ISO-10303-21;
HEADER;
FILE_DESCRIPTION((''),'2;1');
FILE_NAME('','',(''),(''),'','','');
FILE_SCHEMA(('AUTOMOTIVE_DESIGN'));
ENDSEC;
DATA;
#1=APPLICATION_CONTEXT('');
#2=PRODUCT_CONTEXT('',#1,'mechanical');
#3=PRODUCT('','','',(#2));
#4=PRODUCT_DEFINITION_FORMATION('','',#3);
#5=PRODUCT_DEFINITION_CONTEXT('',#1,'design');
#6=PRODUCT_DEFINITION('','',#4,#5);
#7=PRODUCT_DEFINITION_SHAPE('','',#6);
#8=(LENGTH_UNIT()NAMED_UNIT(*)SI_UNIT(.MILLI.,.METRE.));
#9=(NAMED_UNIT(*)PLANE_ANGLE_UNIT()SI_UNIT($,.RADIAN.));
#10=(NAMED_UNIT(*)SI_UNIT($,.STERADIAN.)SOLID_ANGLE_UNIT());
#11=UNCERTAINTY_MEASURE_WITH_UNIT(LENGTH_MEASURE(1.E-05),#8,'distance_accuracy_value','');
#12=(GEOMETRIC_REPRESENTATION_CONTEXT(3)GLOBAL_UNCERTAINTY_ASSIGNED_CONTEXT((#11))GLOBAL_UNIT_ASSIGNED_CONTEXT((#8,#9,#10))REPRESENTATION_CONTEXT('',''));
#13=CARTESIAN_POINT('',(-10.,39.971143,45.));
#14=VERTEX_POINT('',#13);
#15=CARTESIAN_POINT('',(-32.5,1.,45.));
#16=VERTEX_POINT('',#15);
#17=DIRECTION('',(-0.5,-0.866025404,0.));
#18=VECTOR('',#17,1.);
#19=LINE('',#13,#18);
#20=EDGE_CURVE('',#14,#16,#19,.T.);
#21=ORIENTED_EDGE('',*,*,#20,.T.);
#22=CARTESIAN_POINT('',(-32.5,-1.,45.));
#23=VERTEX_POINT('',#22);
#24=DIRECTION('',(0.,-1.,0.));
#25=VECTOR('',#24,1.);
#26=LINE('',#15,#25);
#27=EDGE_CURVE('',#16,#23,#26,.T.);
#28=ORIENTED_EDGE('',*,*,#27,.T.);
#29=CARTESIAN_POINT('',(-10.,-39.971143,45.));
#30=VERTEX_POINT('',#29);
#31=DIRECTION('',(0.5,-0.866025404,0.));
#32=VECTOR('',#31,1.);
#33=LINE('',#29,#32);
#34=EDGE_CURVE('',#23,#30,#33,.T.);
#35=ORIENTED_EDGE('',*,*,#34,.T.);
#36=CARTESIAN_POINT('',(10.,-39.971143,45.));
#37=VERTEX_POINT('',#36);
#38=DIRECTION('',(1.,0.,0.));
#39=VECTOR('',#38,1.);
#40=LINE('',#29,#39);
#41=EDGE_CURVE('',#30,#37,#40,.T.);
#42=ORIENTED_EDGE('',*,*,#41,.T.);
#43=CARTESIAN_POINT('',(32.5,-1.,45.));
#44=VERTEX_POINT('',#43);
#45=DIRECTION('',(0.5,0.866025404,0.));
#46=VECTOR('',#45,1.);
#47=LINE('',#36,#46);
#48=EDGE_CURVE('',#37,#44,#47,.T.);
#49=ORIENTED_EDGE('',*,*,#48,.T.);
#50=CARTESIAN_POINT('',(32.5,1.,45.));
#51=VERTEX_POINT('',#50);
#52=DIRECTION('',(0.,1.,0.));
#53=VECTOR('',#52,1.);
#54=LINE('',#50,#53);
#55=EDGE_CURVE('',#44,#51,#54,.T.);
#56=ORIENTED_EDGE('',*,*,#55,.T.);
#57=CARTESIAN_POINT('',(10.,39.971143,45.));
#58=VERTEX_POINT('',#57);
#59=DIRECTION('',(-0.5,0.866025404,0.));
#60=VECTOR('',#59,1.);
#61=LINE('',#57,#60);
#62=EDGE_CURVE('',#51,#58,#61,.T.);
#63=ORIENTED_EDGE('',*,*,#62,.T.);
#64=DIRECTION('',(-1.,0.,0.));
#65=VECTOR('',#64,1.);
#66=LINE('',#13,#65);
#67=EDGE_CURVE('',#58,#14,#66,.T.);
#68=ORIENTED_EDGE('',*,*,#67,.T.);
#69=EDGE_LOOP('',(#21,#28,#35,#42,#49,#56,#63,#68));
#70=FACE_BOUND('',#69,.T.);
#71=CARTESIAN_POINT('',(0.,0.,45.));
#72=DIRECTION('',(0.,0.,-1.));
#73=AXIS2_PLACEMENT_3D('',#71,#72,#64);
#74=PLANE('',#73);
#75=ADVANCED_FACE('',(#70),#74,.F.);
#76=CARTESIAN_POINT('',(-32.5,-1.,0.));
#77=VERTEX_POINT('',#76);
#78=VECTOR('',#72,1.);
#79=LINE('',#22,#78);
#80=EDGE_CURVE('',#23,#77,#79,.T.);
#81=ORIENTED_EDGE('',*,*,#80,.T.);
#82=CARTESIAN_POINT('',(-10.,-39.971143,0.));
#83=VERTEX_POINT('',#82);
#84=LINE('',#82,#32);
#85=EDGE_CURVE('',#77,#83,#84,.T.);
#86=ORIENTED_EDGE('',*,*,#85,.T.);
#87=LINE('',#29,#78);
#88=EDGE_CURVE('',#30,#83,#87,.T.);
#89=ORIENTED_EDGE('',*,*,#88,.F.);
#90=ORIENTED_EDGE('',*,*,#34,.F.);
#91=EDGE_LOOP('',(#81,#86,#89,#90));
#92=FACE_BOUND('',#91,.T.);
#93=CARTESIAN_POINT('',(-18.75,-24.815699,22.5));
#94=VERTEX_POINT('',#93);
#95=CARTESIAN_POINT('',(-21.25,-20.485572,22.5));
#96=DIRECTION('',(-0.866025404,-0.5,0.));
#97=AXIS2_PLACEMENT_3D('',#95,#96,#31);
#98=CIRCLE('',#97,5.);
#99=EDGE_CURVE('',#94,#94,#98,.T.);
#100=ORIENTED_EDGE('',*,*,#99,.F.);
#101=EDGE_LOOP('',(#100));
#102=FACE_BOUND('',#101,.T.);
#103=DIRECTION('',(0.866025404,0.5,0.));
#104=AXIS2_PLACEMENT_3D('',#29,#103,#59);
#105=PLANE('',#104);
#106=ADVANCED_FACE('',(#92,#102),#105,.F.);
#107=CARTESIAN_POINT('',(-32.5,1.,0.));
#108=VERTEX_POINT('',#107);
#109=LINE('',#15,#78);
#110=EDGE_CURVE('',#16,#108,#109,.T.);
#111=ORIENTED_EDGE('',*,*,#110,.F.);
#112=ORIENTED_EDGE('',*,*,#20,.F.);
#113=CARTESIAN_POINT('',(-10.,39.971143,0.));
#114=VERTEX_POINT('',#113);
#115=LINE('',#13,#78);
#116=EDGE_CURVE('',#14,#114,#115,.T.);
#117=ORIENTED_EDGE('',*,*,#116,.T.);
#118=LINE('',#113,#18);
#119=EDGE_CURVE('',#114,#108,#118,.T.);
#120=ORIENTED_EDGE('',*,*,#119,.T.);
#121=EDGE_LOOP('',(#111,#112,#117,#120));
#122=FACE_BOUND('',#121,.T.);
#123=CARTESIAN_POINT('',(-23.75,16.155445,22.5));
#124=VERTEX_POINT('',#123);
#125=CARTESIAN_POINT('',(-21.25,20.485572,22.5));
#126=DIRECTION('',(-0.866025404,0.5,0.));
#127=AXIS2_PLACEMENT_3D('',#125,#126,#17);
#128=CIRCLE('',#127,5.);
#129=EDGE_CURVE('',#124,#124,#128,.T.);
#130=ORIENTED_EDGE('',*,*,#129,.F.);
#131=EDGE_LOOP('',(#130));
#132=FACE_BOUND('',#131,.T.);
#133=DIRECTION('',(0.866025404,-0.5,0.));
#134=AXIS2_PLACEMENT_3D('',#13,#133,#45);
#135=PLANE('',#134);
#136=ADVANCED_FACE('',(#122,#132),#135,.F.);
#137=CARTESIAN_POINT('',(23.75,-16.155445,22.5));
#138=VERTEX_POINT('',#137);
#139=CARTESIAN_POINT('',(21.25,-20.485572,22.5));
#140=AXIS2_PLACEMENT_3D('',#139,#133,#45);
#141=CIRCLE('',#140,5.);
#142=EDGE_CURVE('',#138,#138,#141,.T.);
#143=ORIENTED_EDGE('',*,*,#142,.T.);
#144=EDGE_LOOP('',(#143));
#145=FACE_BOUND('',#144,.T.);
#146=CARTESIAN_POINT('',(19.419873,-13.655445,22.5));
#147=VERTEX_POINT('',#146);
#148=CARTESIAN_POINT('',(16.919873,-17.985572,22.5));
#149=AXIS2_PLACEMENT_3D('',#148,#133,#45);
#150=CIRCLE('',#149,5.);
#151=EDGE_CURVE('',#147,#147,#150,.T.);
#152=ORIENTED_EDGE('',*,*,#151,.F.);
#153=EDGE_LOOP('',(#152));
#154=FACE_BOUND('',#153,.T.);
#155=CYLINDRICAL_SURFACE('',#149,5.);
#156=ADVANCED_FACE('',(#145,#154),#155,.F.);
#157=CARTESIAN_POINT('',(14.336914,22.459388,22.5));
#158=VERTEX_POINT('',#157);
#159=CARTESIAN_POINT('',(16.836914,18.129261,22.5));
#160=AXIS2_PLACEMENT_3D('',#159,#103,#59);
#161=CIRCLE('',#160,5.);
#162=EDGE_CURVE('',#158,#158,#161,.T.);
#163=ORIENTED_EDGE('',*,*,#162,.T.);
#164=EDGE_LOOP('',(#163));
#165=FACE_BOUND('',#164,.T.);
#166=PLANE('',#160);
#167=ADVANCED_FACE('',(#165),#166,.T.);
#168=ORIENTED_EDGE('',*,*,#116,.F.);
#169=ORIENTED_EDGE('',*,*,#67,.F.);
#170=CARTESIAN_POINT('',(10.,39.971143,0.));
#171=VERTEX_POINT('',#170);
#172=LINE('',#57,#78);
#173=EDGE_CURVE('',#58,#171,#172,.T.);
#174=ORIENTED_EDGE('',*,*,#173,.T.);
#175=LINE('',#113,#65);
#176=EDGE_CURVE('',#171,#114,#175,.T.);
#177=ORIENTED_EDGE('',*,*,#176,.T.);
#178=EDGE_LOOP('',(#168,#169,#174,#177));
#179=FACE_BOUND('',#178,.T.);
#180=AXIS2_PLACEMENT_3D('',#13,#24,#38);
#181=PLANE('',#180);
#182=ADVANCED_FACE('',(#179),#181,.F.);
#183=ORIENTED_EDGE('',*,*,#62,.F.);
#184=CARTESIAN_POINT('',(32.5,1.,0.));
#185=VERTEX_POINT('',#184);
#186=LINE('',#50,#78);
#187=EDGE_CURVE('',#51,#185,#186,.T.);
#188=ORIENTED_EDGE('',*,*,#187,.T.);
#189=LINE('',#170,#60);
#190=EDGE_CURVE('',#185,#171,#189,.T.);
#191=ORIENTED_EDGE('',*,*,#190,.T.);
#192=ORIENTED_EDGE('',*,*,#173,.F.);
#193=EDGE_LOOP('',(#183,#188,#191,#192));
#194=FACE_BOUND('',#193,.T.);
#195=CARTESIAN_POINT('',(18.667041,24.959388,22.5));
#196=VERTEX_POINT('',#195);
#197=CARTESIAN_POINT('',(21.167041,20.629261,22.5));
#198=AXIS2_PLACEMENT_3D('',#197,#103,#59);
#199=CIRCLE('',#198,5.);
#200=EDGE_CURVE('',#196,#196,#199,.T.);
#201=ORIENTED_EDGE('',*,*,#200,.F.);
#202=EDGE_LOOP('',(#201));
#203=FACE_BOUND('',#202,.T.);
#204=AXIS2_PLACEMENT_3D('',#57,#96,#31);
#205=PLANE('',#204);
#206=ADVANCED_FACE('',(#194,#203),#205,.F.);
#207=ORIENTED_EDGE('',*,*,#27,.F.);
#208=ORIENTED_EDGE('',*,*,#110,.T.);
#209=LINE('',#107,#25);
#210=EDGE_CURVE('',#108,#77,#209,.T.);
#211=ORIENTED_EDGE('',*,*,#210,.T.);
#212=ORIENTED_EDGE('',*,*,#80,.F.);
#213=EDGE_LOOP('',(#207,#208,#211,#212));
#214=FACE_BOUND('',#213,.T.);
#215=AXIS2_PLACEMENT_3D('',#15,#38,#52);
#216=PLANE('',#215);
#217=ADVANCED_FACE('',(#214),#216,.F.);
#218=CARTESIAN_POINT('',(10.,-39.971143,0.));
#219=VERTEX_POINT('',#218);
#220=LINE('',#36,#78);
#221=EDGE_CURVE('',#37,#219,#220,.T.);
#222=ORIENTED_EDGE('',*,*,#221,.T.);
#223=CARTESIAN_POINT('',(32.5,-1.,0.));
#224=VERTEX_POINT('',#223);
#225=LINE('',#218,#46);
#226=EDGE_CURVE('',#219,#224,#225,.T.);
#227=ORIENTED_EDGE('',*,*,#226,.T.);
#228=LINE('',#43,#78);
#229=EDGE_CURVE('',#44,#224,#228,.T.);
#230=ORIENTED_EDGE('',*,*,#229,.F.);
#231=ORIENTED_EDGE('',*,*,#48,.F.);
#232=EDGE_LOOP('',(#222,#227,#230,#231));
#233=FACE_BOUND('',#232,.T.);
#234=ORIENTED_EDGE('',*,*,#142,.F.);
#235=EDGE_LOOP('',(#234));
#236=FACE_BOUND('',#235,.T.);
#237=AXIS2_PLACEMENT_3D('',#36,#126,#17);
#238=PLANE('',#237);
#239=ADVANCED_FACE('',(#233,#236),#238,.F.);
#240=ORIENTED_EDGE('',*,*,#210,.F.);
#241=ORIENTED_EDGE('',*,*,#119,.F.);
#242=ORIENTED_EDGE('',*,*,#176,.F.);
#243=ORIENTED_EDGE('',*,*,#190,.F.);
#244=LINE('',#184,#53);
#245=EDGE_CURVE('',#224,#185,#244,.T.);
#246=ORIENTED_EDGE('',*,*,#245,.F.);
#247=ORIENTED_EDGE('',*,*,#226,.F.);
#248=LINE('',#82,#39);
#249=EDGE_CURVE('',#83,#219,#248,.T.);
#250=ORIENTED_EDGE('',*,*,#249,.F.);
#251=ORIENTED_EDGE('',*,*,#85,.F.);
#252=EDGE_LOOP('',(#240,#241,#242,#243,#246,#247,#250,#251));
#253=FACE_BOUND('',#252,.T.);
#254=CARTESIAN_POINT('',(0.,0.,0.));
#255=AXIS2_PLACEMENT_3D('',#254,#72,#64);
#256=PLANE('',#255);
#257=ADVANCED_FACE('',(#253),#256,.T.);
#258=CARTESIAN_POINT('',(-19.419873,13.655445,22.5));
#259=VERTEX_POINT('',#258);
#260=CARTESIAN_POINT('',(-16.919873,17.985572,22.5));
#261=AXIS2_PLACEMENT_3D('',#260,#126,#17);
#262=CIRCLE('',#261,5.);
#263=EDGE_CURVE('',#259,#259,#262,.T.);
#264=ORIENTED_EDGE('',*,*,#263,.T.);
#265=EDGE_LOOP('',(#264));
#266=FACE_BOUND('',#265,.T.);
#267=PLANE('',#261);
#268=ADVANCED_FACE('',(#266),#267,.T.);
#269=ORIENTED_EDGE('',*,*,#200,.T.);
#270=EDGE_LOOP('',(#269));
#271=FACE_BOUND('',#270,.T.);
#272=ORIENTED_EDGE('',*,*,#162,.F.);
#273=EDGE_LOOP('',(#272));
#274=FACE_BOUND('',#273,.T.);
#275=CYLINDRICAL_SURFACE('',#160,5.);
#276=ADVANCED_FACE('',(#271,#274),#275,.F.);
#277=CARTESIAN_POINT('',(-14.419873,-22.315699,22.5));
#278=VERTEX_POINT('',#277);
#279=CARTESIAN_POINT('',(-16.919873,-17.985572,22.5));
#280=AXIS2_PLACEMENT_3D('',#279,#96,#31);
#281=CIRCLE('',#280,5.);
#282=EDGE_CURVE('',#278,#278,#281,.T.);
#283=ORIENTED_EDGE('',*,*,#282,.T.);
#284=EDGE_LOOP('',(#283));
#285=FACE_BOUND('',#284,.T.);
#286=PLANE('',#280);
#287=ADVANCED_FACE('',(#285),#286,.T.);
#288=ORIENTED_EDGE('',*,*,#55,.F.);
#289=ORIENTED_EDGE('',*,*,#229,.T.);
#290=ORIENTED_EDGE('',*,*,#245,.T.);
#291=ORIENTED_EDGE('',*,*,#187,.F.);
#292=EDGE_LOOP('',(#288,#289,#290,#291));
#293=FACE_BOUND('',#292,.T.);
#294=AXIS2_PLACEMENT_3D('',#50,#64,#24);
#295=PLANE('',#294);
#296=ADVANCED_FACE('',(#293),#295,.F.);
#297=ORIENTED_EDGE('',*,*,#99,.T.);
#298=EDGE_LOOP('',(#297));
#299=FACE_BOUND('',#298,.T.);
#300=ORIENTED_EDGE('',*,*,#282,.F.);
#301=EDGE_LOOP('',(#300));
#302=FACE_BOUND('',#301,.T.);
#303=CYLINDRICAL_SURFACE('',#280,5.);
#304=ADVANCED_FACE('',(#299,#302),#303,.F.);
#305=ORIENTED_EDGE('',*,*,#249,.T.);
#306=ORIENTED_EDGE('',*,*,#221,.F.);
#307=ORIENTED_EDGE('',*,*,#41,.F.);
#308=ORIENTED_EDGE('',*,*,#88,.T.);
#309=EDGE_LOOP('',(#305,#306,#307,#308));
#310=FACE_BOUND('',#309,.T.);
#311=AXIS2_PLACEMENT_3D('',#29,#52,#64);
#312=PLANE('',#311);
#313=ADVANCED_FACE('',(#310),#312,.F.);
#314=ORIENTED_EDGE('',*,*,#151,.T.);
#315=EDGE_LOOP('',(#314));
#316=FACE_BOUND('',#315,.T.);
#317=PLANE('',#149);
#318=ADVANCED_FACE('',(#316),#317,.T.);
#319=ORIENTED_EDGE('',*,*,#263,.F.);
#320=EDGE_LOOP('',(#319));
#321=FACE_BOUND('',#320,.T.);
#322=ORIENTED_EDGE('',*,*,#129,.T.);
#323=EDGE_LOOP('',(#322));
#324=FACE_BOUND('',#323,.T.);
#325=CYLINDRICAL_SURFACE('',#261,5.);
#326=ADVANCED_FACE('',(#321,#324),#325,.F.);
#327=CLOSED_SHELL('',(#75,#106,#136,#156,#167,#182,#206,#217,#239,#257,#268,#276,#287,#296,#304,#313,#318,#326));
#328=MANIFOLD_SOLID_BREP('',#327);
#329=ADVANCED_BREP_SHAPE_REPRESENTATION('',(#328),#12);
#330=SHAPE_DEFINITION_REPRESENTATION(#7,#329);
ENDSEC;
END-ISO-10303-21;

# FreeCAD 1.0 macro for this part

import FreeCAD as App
import Part
import Sketcher
Q = App.Units.Quantity


def add_polygon(sketch, points):
    """Adds a closed chain of lines whose ends are joined by coincident constraints."""
    first, n = sketch.GeometryCount, len(points)
    for a, b in zip(points, points[1:] + points[:1]):
        sketch.addGeometry(Part.LineSegment(App.Vector(*a, 0), App.Vector(*b, 0)), False)
    for i in range(n):
        sketch.addConstraint(Sketcher.Constraint("Coincident", first + i, 2, first + (i + 1) % n, 1))

doc = App.newDocument("Part")
body = doc.addObject("PartDesign::Body", "Body")

# Sketch on XY plane
sketch1 = body.newObject("Sketcher::SketchObject", "Sketch")
sketch1.AttachmentSupport = (doc.getObject("XY_Plane"), [""])
sketch1.MapMode = "FlatFace"
add_polygon(sketch1, [(10, 40), (-10, 40), (-32.5, 1), (-32.5, -1), (-10, -40), (10, -40), (32.5, -1), (32.5, 1)])  # lines 0-7
sketch1.addConstraint(Sketcher.Constraint("Horizontal", 0))
sketch1.addConstraint(Sketcher.Constraint("Vertical", 2))
sketch1.addConstraint(Sketcher.Constraint("Horizontal", 4))
sketch1.addConstraint(Sketcher.Constraint("Vertical", 6))
sketch1.addConstraint(Sketcher.Constraint("Symmetric", 0, 2, 4, 2, -1, 1))
sketch1.addConstraint(Sketcher.Constraint("Symmetric", 1, 2, 5, 2, -1, 1))
sketch1.addConstraint(Sketcher.Constraint("Parallel", 3, 7))
sketch1.addConstraint(Sketcher.Constraint("Horizontal", 2, 2, 5, 2))
sketch1.addConstraint(Sketcher.Constraint("Horizontal", 1, 2, 6, 2))
sketch1.addConstraint(Sketcher.Constraint("Vertical", 0, 2, 3, 2))
sketch1.addConstraint(Sketcher.Constraint("DistanceX", 0, 2, 0, 1, 20.0))
sketch1.addConstraint(Sketcher.Constraint("DistanceY", 2, 2, 2, 1, 2.0))
sketch1.addConstraint(Sketcher.Constraint("Angle", 1, Q("-120 deg")))
sketch1.addConstraint(Sketcher.Constraint("Distance", 1, 45.0))
pad1 = body.newObject("PartDesign::Pad", "Pad")
pad1.Profile = sketch1
pad1.Length = 45

# Sketch on an angled plane
sketch2 = body.newObject("Sketcher::SketchObject", "Sketch001")
sketch2.Placement = App.Placement(App.Vector(24.808013, 14.322913, 0), App.Rotation(App.Vector(0, 0, -1), App.Vector(-0.5, 0.866025404, 0), App.Vector(0.866025404, 0.5, 0), "ZXY"))
sketch2.addGeometry(Part.Circle(App.Vector(-22, 7, 0), App.Vector(0, 0, 1), 5), False)
sketch2.addConstraint(Sketcher.Constraint("Diameter", 0, 10.0))
sketch2.addConstraint(Sketcher.Constraint("DistanceX", 0, 3, -1, 1, 22.5))
sketch2.addConstraint(Sketcher.Constraint("DistanceY", -1, 1, 0, 3, 7.281944))
pocket1 = body.newObject("PartDesign::Pocket", "Pocket")
pocket1.Profile = sketch2
pocket1.Length = 5

# Sketch on an angled plane
sketch3 = body.newObject("Sketcher::SketchObject", "Sketch002")
sketch3.Placement = App.Placement(App.Vector(-24.808013, 14.322913, 0), App.Rotation(App.Vector(0, 0, 1), App.Vector(0.5, 0.866025404, 0), App.Vector(-0.866025404, 0.5, 0), "ZXY"))
sketch3.addGeometry(Part.Circle(App.Vector(22, 7, 0), App.Vector(0, 0, 1), 5), False)
sketch3.addConstraint(Sketcher.Constraint("Diameter", 0, 10.0))
sketch3.addConstraint(Sketcher.Constraint("DistanceX", -1, 1, 0, 3, 22.5))
sketch3.addConstraint(Sketcher.Constraint("DistanceY", -1, 1, 0, 3, 7.116025))
pocket2 = body.newObject("PartDesign::Pocket", "Pocket001")
pocket2.Profile = sketch3
pocket2.Length = 5

# Sketch on an angled plane
sketch4 = body.newObject("Sketcher::SketchObject", "Sketch003")
sketch4.Placement = App.Placement(App.Vector(-24.808013, -14.322913, 0), App.Rotation(App.Vector(0, 0, 1), App.Vector(-0.5, 0.866025404, 0), App.Vector(-0.866025404, -0.5, 0), "ZXY"))
sketch4.addGeometry(Part.Circle(App.Vector(22, -7, 0), App.Vector(0, 0, 1), 5), False)
sketch4.addConstraint(Sketcher.Constraint("Diameter", 0, 10.0))
sketch4.addConstraint(Sketcher.Constraint("DistanceX", -1, 1, 0, 3, 22.5))
sketch4.addConstraint(Sketcher.Constraint("DistanceY", 0, 3, -1, 1, 7.116025))
pocket3 = body.newObject("PartDesign::Pocket", "Pocket002")
pocket3.Profile = sketch4
pocket3.Length = 5

# Sketch on an angled plane
sketch5 = body.newObject("Sketcher::SketchObject", "Sketch004")
sketch5.Placement = App.Placement(App.Vector(24.808013, -14.322913, 0), App.Rotation(App.Vector(0, 0, -1), App.Vector(0.5, 0.866025404, 0), App.Vector(0.866025404, -0.5, 0), "ZXY"))
sketch5.addGeometry(Part.Circle(App.Vector(-22, -7, 0), App.Vector(0, 0, 1), 5), False)
sketch5.addConstraint(Sketcher.Constraint("Diameter", 0, 10.0))
sketch5.addConstraint(Sketcher.Constraint("DistanceX", 0, 3, -1, 1, 22.5))
sketch5.addConstraint(Sketcher.Constraint("DistanceY", 0, 3, -1, 1, 7.116025))
pocket4 = body.newObject("PartDesign::Pocket", "Pocket003")
pocket4.Profile = sketch5
pocket4.Length = 5

doc.recompute()
